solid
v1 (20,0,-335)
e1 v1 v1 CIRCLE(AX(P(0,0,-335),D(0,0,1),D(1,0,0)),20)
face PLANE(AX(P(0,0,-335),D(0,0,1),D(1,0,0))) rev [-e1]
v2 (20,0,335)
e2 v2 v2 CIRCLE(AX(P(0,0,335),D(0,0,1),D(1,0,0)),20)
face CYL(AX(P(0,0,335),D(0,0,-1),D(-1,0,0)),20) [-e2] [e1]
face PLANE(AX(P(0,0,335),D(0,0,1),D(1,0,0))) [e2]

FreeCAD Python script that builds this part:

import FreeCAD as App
import Part
import Sketcher

doc = App.newDocument("Part")
body = doc.addObject("PartDesign::Body", "Body")

# Sketch on XY plane
sketch1 = body.newObject("Sketcher::SketchObject", "Sketch")
sketch1.AttachmentSupport = (doc.getObject("XY_Plane"), [""])
sketch1.MapMode = "FlatFace"
sketch1.addGeometry(Part.Circle(App.Vector(0, 0, 0), App.Vector(0, 0, 1), 20), False)
sketch1.addConstraint(Sketcher.Constraint("Coincident", 0, 3, -1, 1))
sketch1.addConstraint(Sketcher.Constraint("Diameter", 0, 40.0))
pad1 = body.newObject("PartDesign::Pad", "Pad")
pad1.Profile = sketch1
pad1.Length = 670
pad1.Midplane = True

doc.recompute()
